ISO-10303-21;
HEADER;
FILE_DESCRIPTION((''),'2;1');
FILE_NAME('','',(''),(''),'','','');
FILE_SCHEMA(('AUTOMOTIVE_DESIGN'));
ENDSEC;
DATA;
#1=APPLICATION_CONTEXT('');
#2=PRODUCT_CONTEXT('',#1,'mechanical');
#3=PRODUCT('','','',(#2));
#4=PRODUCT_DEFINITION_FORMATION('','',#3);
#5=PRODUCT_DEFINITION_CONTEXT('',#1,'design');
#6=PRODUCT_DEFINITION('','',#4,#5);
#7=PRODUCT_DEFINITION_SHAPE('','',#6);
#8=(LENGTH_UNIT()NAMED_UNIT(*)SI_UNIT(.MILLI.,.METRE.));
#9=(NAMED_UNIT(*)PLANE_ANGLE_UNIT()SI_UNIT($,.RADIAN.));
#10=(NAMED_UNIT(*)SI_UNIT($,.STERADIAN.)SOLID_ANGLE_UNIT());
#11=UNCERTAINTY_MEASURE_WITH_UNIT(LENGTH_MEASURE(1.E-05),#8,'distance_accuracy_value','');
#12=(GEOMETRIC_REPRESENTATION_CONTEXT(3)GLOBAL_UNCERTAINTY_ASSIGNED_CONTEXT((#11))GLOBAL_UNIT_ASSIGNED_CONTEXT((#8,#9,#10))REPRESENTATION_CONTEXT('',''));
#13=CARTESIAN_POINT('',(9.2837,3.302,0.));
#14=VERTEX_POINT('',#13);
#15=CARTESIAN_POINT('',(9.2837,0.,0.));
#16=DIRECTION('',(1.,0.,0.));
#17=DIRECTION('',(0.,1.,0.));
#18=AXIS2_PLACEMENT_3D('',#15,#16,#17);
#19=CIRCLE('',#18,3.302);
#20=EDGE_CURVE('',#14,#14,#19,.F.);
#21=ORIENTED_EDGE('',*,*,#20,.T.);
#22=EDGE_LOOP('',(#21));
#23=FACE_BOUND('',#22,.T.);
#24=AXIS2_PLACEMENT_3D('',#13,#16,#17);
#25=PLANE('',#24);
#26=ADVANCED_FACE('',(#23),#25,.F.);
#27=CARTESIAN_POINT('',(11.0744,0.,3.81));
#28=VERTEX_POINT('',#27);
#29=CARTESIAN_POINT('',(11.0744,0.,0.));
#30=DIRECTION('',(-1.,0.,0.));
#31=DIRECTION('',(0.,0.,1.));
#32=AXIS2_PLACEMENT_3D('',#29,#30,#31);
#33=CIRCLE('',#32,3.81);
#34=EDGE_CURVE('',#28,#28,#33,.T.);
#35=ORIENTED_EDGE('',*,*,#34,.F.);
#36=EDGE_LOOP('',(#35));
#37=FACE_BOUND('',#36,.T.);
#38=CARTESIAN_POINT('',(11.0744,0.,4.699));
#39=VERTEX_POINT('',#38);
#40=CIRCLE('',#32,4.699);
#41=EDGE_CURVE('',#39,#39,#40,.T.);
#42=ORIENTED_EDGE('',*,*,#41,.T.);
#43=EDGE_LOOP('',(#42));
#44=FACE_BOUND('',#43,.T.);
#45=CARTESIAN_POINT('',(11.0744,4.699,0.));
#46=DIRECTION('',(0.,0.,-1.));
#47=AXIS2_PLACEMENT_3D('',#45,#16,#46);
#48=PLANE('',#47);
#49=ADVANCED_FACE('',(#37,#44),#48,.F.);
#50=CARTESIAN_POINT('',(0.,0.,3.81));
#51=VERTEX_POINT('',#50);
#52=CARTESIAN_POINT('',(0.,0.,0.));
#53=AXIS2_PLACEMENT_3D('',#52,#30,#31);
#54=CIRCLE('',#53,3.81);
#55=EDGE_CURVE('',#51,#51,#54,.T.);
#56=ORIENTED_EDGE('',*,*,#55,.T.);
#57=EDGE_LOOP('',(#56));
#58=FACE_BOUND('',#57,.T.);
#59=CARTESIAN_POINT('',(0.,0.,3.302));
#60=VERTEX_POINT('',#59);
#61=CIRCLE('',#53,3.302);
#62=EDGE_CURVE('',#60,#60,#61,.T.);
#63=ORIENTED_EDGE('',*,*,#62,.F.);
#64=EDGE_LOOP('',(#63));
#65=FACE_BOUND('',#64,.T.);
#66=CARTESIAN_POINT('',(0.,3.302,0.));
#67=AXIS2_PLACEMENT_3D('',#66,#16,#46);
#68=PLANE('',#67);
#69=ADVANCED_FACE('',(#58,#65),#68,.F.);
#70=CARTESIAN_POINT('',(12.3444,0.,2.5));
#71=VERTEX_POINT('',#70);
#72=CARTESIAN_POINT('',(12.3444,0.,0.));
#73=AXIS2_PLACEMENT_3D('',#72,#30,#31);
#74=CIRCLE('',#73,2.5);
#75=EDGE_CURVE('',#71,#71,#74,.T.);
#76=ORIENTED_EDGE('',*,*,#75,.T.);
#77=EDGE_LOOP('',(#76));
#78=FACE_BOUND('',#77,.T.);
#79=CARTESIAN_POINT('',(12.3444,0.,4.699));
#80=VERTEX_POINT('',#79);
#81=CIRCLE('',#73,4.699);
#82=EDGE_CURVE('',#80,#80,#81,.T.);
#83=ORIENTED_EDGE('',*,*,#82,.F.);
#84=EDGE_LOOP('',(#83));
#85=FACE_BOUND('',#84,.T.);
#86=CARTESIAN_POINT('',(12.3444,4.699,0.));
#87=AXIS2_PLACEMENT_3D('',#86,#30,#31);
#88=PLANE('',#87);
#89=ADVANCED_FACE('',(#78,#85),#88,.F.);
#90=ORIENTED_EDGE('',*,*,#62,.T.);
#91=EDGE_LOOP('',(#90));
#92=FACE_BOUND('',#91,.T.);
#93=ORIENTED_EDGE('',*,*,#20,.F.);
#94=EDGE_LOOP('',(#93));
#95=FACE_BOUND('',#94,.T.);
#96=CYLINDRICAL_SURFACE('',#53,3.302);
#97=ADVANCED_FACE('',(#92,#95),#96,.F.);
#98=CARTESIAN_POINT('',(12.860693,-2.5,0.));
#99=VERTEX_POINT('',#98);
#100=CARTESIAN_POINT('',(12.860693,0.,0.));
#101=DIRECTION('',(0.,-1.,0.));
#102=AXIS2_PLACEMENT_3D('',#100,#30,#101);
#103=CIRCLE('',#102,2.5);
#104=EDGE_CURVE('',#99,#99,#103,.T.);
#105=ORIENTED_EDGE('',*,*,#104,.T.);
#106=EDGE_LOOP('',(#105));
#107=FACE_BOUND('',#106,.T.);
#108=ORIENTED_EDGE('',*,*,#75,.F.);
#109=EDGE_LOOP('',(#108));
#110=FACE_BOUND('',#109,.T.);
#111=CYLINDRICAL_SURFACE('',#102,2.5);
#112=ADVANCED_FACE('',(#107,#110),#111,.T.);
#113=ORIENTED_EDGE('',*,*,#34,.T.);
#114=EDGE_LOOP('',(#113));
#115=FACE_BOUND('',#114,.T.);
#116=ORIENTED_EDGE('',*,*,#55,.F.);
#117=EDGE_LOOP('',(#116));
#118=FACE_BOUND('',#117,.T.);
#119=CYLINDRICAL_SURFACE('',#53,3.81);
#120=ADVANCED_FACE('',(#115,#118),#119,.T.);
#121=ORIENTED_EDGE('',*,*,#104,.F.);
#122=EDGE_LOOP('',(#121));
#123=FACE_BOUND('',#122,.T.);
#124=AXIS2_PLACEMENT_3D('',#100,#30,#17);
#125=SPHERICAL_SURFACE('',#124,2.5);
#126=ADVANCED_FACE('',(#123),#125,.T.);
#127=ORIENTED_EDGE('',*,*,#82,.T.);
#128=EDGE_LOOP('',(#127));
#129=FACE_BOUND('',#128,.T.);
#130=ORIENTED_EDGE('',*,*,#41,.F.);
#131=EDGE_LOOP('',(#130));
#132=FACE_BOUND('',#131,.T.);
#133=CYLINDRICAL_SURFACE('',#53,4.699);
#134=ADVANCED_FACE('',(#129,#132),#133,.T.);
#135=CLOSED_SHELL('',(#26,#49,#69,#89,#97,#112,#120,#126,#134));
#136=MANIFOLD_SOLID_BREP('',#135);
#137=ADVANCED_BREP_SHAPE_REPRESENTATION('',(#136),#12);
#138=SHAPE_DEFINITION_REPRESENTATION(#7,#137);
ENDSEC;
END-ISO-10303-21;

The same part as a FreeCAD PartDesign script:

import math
import FreeCAD as App
import Part
import Sketcher
Q = App.Units.Quantity


def add_polygon(sketch, points):
    """Adds a closed chain of lines whose ends are joined by coincident constraints."""
    first, n = sketch.GeometryCount, len(points)
    for a, b in zip(points, points[1:] + points[:1]):
        sketch.addGeometry(Part.LineSegment(App.Vector(*a, 0), App.Vector(*b, 0)), False)
    for i in range(n):
        sketch.addConstraint(Sketcher.Constraint("Coincident", first + i, 2, first + (i + 1) % n, 1))

doc = App.newDocument("Part")
body = doc.addObject("PartDesign::Body", "Body")

# Sketch on XY plane
sketch1 = body.newObject("Sketcher::SketchObject", "Sketch")
sketch1.AttachmentSupport = (doc.getObject("XY_Plane"), [""])
sketch1.MapMode = "FlatFace"
add_polygon(sketch1, [(12.3, 4.7), (11.1, 4.7), (11.1, 3.8), (0, 3.8), (0, 3.3), (10.2, 3.3), (10.2, 2.5), (12.3, 2.5)])  # lines 0-7
sketch1.addConstraint(Sketcher.Constraint("Horizontal", 0))
sketch1.addConstraint(Sketcher.Constraint("Vertical", 1))
sketch1.addConstraint(Sketcher.Constraint("Horizontal", 2))
sketch1.addConstraint(Sketcher.Constraint("Vertical", 3))
sketch1.addConstraint(Sketcher.Constraint("Horizontal", 4))
sketch1.addConstraint(Sketcher.Constraint("Vertical", 5))
sketch1.addConstraint(Sketcher.Constraint("Horizontal", 6))
sketch1.addConstraint(Sketcher.Constraint("Vertical", 7))
sketch1.addConstraint(Sketcher.Constraint("PointOnObject", 2, 2, -2))
sketch1.addConstraint(Sketcher.Constraint("DistanceX", 4, 1, 4, 2, Q("0.4 in")))
sketch1.addConstraint(Sketcher.Constraint("DistanceX", 0, 2, 0, 1, Q("0.05 in")))
sketch1.addConstraint(Sketcher.Constraint("DistanceY", 3, 2, 3, 1, Q("0.02 in")))
sketch1.addConstraint(Sketcher.Constraint("DistanceX", 2, 2, 2, 1, Q("0.436 in")))
sketch1.addConstraint(Sketcher.Constraint("DistanceY", 1, 2, 1, 1, Q("0.035 in")))
sketch1.addConstraint(Sketcher.Constraint("DistanceY", -1, 1, 1, 2, Q("0.15 in")))
sketch1.addConstraint(Sketcher.Constraint("DistanceY", 5, 2, 5, 1, 0.802))
revolution = body.newObject("PartDesign::Revolution", "Revolution")
revolution.Profile = sketch1
revolution.ReferenceAxis = (sketch1, ["H_Axis"])
revolution.Angle = 360

# Sketch on XY plane
sketch2 = body.newObject("Sketcher::SketchObject", "Sketch001")
sketch2.AttachmentSupport = (doc.getObject("XY_Plane"), [""])
sketch2.MapMode = "FlatFace"
sketch2.addGeometry(Part.LineSegment(App.Vector(10.2, 3.3, 0), App.Vector(9.3, 3.3, 0)), False)
sketch2.addGeometry(Part.LineSegment(App.Vector(9.3, 3.3, 0), App.Vector(9.3, 0, 0)), False)
sketch2.addGeometry(Part.LineSegment(App.Vector(9.3, 0, 0), App.Vector(15.4, 0, 0)), False)
sketch2.addGeometry(Part.ArcOfCircle(Part.Circle(App.Vector(12.9, 0, 0), App.Vector(0, 0, 1), 2.5), math.radians(0), math.radians(90)), False)
sketch2.addGeometry(Part.LineSegment(App.Vector(12.9, 2.5, 0), App.Vector(10.2, 2.5, 0)), False)
sketch2.addGeometry(Part.LineSegment(App.Vector(10.2, 2.5, 0), App.Vector(10.2, 3.3, 0)), False)
sketch2.addConstraint(Sketcher.Constraint("Coincident", 0, 2, 1, 1))
sketch2.addConstraint(Sketcher.Constraint("Coincident", 1, 2, 2, 1))
sketch2.addConstraint(Sketcher.Constraint("Coincident", 2, 2, 3, 1))
sketch2.addConstraint(Sketcher.Constraint("Tangent", 3, 2, 4, 1))
sketch2.addConstraint(Sketcher.Constraint("Coincident", 4, 2, 5, 1))
sketch2.addConstraint(Sketcher.Constraint("Coincident", 5, 2, 0, 1))
sketch2.addConstraint(Sketcher.Constraint("Horizontal", 0))
sketch2.addConstraint(Sketcher.Constraint("Vertical", 1))
sketch2.addConstraint(Sketcher.Constraint("Horizontal", 2))
sketch2.addConstraint(Sketcher.Constraint("Horizontal", 4))
sketch2.addConstraint(Sketcher.Constraint("Vertical", 5))
sketch2.addConstraint(Sketcher.Constraint("PointOnObject", 3, 3, -1))
sketch2.addConstraint(Sketcher.Constraint("PointOnObject", 1, 2, -1))
sketch2.addConstraint(Sketcher.Constraint("DistanceY", 1, 2, 1, 1, Q("0.13 in")))
sketch2.addConstraint(Sketcher.Constraint("DistanceX", -1, 1, 4, 2, Q("0.4 in")))
sketch2.addConstraint(Sketcher.Constraint("Radius", 3, 2.5))
sketch2.addConstraint(Sketcher.Constraint("DistanceX", 0, 2, 0, 1, Q("0.0345 in")))
sketch2.addConstraint(Sketcher.Constraint("DistanceX", 2, 1, 2, 2, 6.076993))
revolution2 = body.newObject("PartDesign::Revolution", "Revolution001")
revolution2.Profile = sketch2
revolution2.ReferenceAxis = (sketch2, ["H_Axis"])
revolution2.Angle = 360

doc.recompute()
